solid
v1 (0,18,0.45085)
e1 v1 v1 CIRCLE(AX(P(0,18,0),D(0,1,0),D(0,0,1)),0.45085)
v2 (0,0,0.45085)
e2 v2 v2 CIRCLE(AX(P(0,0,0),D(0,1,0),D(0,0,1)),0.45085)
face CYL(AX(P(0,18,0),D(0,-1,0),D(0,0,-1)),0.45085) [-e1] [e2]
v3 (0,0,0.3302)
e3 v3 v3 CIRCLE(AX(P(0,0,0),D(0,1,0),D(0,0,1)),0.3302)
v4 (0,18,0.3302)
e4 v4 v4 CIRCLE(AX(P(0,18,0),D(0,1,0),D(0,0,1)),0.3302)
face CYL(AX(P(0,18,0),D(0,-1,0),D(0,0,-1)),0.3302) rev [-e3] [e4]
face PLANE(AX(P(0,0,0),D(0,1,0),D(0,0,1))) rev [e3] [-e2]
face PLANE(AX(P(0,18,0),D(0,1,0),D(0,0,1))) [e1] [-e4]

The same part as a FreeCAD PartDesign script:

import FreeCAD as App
import Part
import Sketcher
from FreeCAD import Vector
Q = App.Units.Quantity

doc = App.newDocument("Part")
body = doc.addObject("PartDesign::Body", "Body")

# Sketch on XZ plane
sketch1 = body.newObject("Sketcher::SketchObject", "Sketch")
sketch1.AttachmentSupport = (doc.getObject("XZ_Plane"), [""])
sketch1.MapMode = "FlatFace"
sketch1.addGeometry([
    Part.Circle(Vector(0, 0, 0), Vector(0, 0, 1), 0.45),
    Part.Circle(Vector(0, 0, 0), Vector(0, 0, 1), 0.33),
], False)
sketch1.addConstraint([
    Sketcher.Constraint("Coincident", 0, 3, -1, 1),
    Sketcher.Constraint("Coincident", 1, 3, -1, 1),
    Sketcher.Constraint("Diameter", 0, Q("0.9017 mm")),
    Sketcher.Constraint("Diameter", 1, Q("0.6604 mm")),
])
pad1 = body.newObject("PartDesign::Pad", "Pad")
pad1.Profile = sketch1
pad1.Length = 18
pad1.Reversed = True

doc.recompute()
